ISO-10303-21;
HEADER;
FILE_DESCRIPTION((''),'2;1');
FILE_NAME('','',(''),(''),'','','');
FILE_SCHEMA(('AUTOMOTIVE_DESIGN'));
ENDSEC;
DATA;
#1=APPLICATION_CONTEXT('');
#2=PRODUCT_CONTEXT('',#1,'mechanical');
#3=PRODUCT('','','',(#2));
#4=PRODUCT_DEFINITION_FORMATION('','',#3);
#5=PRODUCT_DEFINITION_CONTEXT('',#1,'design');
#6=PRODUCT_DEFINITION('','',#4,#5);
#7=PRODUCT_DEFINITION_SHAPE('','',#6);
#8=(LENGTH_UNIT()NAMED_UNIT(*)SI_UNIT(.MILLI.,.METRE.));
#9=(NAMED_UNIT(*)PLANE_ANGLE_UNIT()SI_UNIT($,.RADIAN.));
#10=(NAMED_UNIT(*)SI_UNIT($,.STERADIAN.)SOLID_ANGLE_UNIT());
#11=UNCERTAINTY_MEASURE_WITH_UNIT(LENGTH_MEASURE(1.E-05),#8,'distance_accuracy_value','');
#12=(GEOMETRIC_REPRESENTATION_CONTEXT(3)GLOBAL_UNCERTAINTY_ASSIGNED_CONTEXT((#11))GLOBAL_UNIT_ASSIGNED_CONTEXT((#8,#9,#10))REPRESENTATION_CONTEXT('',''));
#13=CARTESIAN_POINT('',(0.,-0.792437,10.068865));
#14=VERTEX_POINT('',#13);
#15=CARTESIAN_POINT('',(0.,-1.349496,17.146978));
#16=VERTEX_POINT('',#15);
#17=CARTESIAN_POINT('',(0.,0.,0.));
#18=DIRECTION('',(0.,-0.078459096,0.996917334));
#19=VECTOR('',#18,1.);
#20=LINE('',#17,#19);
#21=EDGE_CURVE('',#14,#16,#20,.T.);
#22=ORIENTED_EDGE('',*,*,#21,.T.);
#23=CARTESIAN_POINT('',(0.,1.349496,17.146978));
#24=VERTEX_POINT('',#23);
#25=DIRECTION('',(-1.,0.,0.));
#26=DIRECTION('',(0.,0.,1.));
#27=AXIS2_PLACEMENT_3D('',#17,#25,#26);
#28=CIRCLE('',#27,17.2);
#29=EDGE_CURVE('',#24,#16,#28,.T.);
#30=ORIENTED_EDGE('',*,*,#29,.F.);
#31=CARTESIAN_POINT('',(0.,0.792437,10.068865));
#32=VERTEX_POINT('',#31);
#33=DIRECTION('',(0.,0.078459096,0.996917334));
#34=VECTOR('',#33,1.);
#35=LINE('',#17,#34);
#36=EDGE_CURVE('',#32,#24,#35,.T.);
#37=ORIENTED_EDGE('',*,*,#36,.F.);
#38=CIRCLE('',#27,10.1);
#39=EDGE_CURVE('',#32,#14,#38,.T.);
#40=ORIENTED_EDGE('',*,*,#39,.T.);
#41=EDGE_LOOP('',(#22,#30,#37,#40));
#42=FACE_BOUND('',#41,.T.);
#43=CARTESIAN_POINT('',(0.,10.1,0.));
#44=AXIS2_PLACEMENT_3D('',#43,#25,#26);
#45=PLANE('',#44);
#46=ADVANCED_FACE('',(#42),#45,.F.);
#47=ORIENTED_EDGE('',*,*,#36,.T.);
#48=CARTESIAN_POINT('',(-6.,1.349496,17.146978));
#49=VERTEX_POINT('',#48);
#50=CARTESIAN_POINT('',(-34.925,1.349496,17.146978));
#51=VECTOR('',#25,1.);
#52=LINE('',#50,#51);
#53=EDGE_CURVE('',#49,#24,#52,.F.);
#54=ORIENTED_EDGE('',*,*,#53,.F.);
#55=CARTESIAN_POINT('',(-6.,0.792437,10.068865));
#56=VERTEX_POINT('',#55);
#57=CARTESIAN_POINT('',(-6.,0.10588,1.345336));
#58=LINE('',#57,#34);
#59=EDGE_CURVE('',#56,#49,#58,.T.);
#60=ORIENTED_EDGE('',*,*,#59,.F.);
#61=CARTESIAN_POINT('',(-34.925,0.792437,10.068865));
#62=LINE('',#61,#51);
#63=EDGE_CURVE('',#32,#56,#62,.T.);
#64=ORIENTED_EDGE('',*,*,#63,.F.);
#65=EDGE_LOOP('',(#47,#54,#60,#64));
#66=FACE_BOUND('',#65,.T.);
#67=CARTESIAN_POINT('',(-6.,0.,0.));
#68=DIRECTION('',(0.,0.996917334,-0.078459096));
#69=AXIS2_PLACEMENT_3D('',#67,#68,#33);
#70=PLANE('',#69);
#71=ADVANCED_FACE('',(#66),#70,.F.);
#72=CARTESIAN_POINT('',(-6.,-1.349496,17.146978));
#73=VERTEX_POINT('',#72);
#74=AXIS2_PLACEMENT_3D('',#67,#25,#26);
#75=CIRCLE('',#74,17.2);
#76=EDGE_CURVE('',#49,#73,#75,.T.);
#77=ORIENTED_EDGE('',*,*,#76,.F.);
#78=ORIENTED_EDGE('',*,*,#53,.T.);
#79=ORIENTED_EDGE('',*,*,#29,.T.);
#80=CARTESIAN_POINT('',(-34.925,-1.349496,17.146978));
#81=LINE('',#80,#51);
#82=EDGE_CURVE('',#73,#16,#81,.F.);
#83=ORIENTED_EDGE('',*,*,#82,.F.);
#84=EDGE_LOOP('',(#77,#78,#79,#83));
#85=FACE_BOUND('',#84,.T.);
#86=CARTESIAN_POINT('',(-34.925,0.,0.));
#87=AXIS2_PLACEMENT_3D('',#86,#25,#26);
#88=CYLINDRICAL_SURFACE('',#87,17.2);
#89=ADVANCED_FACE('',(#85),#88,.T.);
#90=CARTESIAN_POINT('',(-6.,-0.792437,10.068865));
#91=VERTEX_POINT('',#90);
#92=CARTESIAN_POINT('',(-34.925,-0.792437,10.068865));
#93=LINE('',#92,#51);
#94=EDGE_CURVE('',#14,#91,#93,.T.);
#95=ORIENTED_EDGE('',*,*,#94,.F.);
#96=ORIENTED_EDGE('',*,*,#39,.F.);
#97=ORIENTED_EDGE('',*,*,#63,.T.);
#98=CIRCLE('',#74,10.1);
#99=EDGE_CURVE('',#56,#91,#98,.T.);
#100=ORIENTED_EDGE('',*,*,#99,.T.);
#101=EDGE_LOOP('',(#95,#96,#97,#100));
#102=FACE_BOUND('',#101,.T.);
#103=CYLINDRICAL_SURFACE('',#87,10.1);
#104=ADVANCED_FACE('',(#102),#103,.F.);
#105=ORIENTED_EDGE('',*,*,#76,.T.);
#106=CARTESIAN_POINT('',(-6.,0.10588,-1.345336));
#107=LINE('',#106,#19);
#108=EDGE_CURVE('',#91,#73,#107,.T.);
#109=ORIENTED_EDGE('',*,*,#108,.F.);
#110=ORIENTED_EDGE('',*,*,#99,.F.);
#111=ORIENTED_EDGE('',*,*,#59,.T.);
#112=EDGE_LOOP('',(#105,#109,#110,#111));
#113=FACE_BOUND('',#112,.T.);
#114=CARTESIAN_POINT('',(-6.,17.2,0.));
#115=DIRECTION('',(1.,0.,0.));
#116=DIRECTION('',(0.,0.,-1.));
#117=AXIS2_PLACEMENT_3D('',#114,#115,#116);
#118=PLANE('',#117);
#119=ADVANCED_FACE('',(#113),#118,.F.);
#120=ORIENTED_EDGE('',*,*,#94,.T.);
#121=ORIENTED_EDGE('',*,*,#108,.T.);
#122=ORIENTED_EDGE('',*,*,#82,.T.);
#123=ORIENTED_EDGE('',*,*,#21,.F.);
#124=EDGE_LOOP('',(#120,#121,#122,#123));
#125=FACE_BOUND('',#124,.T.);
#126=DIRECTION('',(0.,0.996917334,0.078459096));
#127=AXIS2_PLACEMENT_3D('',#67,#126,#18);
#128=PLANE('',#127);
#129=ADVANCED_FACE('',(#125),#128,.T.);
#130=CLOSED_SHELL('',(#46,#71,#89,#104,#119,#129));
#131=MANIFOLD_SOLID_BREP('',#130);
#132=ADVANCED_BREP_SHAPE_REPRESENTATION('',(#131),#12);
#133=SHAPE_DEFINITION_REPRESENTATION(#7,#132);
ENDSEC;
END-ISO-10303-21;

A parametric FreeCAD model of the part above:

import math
import FreeCAD as App
import Part
import Sketcher
Q = App.Units.Quantity


def add_polygon(sketch, points):
    """Adds a closed chain of lines whose ends are joined by coincident constraints."""
    first, n = sketch.GeometryCount, len(points)
    for a, b in zip(points, points[1:] + points[:1]):
        sketch.addGeometry(Part.LineSegment(App.Vector(*a, 0), App.Vector(*b, 0)), False)
    for i in range(n):
        sketch.addConstraint(Sketcher.Constraint("Coincident", first + i, 2, first + (i + 1) % n, 1))

doc = App.newDocument("Part")
body = doc.addObject("PartDesign::Body", "Body")

sketch1 = body.newObject("Sketcher::SketchObject", "Sketch")
sketch1.AttachmentSupport = (doc.getObject("XY_Plane"), [""])
sketch1.MapMode = "FlatFace"
add_polygon(sketch1, [(-6, 17.2), (-6, 10.1), (0, 10.1), (0, 17.2)])
sketch1.addConstraint([
    Sketcher.Constraint("Vertical", 0),
    Sketcher.Constraint("Horizontal", 1),
    Sketcher.Constraint("Vertical", 2),
    Sketcher.Constraint("Horizontal", 3),
    Sketcher.Constraint("PointOnObject", 1, 2, -2),
    Sketcher.Constraint("DistanceX", 1, 1, 1, 2, Q("6 mm")),
    Sketcher.Constraint("DistanceY", 0, 2, 0, 1, Q("7.1 mm")),
    Sketcher.Constraint("DistanceY", -1, 1, 0, 2, Q("10.1 mm")),
])
revolution = body.newObject("PartDesign::Revolution", "Revolution")
revolution.Profile = sketch1
revolution.ReferenceAxis = (sketch1, ["H_Axis"])
revolution.Angle = 360

sketch2 = body.newObject("Sketcher::SketchObject", "Sketch001")
sketch2.AttachmentSupport = (doc.getObject("YZ_Plane"), [""])
sketch2.MapMode = "FlatFace"
sketch2.addGeometry([
    Part.LineSegment(App.Vector(0, 0, 0), App.Vector(-1.376486, 17.489918, 0)),
    Part.ArcOfCircle(Part.Circle(App.Vector(0, 0, 0), App.Vector(0, 0, 1), 17.544), math.radians(85.5), math.radians(94.5)),
    Part.LineSegment(App.Vector(1.376486, 17.489918, 0), App.Vector(0, 0, 0)),
], False)
sketch2.addConstraint([
    Sketcher.Constraint("Coincident", 0, 2, 1, 2),
    Sketcher.Constraint("Coincident", 1, 1, 2, 1),
    Sketcher.Constraint("Coincident", 2, 2, 0, 1),
    Sketcher.Constraint("Coincident", 1, 3, -1, 1),
    Sketcher.Constraint("Coincident", 2, 2, -1, 1),
    Sketcher.Constraint("Horizontal", 0, 2, 1, 1),
    Sketcher.Constraint("Angle", 0, Q("94.5 deg")),
    Sketcher.Constraint("Radius", 1, Q("17.544 mm")),
])
pocket1 = body.newObject("PartDesign::Pocket", "Pocket")
pocket1.Profile = sketch2
pocket1.Type = "ThroughAll"

doc.recompute()
